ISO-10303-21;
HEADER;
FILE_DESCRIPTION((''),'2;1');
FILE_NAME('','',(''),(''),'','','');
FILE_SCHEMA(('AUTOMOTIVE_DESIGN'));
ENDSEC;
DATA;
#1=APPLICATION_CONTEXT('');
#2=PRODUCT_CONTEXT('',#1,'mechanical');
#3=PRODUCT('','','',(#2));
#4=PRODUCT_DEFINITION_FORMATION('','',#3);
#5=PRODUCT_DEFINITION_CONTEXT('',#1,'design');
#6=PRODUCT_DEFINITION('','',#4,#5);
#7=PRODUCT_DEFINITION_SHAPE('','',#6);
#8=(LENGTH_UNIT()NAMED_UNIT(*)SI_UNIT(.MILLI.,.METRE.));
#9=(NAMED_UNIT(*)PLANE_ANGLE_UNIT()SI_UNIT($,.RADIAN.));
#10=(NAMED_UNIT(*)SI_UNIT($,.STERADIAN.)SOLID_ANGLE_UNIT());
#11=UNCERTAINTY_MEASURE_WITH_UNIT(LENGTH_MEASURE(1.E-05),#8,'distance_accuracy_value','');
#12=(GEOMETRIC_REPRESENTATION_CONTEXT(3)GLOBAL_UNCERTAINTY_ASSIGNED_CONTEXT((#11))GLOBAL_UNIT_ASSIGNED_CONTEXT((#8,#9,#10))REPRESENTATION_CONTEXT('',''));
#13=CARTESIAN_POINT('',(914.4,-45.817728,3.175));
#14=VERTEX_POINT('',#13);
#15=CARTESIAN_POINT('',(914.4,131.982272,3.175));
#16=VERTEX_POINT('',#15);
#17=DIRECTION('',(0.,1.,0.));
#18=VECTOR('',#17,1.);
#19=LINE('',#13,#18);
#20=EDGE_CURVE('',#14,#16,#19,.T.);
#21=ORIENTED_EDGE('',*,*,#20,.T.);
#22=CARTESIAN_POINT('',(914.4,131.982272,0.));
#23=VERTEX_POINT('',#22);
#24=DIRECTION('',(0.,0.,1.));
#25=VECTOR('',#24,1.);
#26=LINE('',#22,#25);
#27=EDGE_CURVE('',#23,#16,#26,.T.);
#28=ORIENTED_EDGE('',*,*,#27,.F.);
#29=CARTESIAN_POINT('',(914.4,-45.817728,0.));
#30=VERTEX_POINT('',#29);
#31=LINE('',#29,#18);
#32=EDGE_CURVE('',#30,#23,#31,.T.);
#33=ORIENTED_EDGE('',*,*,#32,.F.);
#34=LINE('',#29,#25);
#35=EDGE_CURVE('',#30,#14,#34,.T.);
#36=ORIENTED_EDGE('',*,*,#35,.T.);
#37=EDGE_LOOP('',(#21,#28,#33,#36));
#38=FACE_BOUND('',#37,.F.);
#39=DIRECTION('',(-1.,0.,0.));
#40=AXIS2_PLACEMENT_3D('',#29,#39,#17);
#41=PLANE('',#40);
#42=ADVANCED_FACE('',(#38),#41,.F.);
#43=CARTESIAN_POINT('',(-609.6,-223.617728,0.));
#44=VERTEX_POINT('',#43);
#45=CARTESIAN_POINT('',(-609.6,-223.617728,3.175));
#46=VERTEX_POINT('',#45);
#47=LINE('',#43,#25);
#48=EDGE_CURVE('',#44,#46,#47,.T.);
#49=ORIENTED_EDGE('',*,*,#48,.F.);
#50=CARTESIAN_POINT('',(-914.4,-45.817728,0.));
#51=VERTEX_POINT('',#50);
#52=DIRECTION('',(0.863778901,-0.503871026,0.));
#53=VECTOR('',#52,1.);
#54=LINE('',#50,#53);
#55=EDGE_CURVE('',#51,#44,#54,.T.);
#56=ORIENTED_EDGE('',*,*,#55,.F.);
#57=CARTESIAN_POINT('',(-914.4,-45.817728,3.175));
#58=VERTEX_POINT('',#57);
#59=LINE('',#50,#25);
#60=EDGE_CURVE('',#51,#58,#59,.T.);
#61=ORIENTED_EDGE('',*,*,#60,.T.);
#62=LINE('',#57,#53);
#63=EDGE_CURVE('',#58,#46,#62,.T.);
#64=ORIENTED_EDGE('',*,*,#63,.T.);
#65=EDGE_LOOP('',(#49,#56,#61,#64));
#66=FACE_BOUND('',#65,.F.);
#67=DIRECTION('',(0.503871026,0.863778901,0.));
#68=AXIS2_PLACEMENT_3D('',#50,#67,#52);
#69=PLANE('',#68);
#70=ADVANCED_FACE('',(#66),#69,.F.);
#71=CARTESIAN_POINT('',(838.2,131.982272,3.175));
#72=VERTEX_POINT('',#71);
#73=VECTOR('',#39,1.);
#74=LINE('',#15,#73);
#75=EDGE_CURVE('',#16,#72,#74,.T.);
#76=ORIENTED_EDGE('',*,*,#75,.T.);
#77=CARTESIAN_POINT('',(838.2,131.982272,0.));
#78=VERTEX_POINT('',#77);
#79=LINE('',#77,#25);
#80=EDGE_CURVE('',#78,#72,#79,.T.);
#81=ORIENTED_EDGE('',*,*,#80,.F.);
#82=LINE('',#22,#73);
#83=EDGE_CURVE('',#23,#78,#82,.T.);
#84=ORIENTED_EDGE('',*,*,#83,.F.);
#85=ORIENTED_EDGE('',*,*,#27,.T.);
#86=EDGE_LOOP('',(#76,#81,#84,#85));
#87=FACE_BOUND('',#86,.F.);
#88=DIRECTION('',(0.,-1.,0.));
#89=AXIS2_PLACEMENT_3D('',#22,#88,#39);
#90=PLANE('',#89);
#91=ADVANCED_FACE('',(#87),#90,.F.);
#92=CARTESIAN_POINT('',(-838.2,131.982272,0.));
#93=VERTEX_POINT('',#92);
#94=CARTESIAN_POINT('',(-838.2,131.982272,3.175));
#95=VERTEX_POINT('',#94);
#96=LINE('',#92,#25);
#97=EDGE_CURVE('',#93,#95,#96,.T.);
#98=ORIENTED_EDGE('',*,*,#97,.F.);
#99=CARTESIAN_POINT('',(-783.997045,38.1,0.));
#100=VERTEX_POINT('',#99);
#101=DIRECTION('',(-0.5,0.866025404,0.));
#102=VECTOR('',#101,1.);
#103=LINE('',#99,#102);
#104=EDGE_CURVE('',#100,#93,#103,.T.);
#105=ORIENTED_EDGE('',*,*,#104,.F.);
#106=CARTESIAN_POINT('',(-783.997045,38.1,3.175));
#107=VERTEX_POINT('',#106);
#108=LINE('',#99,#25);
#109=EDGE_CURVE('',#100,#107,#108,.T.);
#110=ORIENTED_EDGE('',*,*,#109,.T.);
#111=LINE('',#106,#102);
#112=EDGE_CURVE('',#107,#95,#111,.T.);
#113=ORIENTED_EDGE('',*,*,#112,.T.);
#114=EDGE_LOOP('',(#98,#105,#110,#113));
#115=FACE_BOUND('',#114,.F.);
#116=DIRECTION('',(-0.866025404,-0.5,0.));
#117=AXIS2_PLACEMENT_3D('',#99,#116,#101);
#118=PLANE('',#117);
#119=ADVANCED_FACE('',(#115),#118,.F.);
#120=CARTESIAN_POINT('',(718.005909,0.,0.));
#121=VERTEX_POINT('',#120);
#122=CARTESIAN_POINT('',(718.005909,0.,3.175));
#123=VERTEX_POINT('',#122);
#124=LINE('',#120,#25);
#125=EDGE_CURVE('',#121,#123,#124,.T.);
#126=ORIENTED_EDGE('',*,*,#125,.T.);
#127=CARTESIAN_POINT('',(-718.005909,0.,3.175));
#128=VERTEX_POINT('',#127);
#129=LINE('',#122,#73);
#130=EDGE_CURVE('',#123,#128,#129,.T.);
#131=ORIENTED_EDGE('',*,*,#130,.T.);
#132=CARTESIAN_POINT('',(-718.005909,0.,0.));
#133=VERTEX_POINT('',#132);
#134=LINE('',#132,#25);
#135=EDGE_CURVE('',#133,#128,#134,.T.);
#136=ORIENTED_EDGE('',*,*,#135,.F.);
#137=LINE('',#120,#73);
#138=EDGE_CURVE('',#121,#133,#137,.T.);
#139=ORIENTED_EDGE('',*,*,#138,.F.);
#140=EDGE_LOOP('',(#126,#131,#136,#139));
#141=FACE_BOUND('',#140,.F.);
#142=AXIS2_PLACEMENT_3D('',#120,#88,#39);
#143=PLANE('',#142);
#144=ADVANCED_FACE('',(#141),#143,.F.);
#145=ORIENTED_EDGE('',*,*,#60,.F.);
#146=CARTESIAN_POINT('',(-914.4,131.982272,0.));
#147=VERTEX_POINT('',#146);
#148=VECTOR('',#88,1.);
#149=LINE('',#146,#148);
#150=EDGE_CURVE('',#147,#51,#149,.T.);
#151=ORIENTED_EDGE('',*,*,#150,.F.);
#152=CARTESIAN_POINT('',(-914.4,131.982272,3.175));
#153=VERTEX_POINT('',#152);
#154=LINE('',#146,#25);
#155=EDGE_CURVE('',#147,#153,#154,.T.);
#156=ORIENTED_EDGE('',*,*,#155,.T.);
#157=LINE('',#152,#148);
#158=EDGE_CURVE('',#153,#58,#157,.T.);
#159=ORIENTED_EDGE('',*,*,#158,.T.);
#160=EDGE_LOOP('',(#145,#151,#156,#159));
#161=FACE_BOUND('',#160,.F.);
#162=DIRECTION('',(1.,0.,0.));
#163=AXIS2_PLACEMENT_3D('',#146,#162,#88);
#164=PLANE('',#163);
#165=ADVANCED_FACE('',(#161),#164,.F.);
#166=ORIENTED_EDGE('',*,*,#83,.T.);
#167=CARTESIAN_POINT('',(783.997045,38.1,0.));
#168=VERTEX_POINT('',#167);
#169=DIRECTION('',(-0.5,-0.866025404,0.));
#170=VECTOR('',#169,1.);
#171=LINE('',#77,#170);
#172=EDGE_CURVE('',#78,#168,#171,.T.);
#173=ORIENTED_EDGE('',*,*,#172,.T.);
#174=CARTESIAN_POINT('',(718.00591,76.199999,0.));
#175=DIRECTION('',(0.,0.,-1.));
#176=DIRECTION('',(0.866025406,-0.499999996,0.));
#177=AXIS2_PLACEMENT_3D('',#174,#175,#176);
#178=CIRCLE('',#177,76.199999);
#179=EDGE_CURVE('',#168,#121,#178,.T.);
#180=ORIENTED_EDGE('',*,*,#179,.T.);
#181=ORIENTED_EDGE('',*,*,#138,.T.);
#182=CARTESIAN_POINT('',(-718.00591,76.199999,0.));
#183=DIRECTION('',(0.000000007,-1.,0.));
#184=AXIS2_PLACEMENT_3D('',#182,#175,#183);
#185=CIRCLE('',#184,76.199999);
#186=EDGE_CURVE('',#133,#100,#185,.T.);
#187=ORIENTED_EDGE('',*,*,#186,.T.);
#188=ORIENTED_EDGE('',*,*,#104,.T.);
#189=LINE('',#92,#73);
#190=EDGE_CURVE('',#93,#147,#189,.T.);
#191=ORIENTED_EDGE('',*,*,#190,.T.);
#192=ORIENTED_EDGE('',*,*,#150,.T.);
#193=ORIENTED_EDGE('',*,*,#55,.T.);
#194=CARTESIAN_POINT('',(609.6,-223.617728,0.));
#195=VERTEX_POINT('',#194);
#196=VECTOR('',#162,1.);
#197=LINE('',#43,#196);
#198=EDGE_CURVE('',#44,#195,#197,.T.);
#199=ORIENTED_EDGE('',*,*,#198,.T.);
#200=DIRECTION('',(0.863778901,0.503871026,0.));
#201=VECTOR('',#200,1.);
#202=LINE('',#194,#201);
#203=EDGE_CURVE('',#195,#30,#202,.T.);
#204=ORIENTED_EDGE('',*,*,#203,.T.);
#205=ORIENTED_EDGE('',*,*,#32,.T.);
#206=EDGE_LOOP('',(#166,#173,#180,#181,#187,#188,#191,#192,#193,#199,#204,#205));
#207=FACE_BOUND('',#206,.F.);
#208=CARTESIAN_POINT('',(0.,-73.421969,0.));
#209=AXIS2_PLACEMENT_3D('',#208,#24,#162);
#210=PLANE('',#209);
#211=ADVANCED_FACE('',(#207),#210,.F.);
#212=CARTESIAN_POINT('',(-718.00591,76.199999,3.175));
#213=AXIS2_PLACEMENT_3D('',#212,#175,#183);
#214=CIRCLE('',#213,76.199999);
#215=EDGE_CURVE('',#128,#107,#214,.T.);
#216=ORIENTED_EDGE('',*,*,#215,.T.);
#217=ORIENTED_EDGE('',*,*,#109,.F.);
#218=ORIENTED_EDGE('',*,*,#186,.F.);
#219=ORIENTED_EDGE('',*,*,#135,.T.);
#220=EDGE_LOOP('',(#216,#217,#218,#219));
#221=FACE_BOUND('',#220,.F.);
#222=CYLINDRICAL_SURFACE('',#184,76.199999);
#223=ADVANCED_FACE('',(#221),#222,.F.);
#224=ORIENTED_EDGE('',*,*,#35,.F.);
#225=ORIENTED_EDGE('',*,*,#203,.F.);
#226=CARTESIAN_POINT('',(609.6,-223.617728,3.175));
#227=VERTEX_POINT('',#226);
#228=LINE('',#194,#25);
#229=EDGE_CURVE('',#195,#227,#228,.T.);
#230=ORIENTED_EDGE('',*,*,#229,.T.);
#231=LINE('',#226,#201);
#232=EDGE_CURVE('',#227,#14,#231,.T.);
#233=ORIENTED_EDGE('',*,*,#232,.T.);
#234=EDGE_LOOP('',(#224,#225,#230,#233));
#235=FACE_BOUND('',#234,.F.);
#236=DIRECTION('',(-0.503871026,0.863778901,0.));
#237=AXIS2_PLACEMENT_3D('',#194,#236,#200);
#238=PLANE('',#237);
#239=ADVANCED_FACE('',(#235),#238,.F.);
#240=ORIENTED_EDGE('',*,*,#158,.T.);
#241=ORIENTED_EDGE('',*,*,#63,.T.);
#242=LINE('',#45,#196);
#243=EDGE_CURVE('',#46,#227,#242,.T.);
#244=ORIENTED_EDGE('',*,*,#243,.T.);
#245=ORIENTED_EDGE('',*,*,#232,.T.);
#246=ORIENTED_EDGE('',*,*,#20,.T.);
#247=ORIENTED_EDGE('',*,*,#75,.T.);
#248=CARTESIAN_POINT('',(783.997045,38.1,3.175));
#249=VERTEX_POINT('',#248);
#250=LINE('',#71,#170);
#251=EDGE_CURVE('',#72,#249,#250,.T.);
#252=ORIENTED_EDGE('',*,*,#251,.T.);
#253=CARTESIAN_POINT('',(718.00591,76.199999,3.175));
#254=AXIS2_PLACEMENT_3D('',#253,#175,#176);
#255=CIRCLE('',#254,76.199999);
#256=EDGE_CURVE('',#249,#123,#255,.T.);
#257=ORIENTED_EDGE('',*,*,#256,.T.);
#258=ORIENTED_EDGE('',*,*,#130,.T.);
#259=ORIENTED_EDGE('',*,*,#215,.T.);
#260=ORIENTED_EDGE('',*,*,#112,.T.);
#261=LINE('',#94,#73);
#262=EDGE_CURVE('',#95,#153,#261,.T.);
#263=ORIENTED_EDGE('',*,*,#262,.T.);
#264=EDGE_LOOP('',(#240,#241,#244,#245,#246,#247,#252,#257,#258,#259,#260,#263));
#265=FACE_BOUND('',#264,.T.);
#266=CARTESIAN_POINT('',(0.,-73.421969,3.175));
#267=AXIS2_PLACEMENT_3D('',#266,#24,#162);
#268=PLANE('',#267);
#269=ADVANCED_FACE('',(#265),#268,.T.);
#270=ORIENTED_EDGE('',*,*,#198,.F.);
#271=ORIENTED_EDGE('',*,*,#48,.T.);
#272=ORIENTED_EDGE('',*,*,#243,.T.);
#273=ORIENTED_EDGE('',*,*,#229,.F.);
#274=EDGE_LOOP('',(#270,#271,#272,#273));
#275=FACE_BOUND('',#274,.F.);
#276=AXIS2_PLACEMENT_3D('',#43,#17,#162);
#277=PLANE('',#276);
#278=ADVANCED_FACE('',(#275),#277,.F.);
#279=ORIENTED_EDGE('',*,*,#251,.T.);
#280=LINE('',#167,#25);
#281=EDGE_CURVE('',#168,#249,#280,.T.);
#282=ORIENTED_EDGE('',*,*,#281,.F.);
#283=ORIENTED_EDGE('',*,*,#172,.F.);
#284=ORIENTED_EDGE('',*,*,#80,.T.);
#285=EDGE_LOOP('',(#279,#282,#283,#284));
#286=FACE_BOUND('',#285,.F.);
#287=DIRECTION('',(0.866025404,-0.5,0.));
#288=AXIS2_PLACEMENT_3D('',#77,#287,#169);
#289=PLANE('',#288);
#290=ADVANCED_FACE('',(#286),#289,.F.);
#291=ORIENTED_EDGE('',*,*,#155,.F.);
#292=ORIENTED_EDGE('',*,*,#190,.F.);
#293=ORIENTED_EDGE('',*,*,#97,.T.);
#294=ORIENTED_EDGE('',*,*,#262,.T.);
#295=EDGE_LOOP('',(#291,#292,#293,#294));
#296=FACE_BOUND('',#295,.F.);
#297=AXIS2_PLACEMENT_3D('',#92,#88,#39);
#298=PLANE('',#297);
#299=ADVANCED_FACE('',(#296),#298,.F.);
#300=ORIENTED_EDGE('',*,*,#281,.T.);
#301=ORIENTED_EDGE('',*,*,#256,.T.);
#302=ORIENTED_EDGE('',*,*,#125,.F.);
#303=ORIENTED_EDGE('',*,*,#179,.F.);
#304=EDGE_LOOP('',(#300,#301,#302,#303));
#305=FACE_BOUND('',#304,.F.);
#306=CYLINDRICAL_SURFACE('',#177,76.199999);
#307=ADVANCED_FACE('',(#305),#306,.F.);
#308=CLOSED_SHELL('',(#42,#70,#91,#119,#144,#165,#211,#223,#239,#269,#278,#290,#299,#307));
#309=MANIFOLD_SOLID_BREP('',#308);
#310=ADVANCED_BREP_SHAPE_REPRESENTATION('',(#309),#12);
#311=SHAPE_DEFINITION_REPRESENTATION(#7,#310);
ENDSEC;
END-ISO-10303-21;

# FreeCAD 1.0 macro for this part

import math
import FreeCAD as App
import Part
import Sketcher

V = App.Vector
Q = App.Units.Quantity

doc = App.newDocument("Part")
body = doc.addObject("PartDesign::Body", "Body")

# Sketch on XY plane
sketch1 = doc.addObject("Sketcher::SketchObject", "Sketch")
body.addObject(sketch1)
sketch1.AttachmentSupport = (doc.XY_Plane, [""])
sketch1.MapMode = "FlatFace"
sketch1.addGeometry([
    Part.LineSegment(V(914.4, -45.817728, 0), V(914.4, 131.982272, 0)),  # 0
    Part.LineSegment(V(914.4, 131.982272, 0), V(838.2, 131.982272, 0)),  # 1
    Part.LineSegment(V(838.2, 131.982272, 0), V(783.997045, 38.1, 0)),  # 2
    Part.ArcOfCircle(Part.Circle(V(718.00591, 76.199999, 0), V(0, 0, 1), 76.199999), math.radians(-90), math.radians(-30)),  # 3
    Part.LineSegment(V(718.005909, 0, 0), V(-718.005909, 0, 0)),  # 4
    Part.ArcOfCircle(Part.Circle(V(-718.00591, 76.199999, 0), V(0, 0, 1), 76.199999), math.radians(-150), math.radians(-90)),  # 5
    Part.LineSegment(V(-783.997045, 38.1, 0), V(-838.2, 131.982272, 0)),  # 6
    Part.LineSegment(V(-838.2, 131.982272, 0), V(-914.4, 131.982272, 0)),  # 7
    Part.LineSegment(V(-914.4, 131.982272, 0), V(-914.4, -45.817728, 0)),  # 8
    Part.LineSegment(V(-914.4, -45.817728, 0), V(-609.6, -223.617728, 0)),  # 9
    Part.LineSegment(V(-609.6, -223.617728, 0), V(609.6, -223.617728, 0)),  # 10
    Part.LineSegment(V(609.6, -223.617728, 0), V(914.4, -45.817728, 0)),  # 11
], False)
sketch1.addConstraint([
    Sketcher.Constraint("Coincident", 0, 2, 1, 1),
    Sketcher.Constraint("Coincident", 1, 2, 2, 1),
    Sketcher.Constraint("Tangent", 2, 2, 3, 2),
    Sketcher.Constraint("Tangent", 3, 1, 4, 1),
    Sketcher.Constraint("Tangent", 4, 2, 5, 2),
    Sketcher.Constraint("Tangent", 5, 1, 6, 1),
    Sketcher.Constraint("Coincident", 6, 2, 7, 1),
    Sketcher.Constraint("Coincident", 7, 2, 8, 1),
    Sketcher.Constraint("Coincident", 8, 2, 9, 1),
    Sketcher.Constraint("Coincident", 9, 2, 10, 1),
    Sketcher.Constraint("Coincident", 10, 2, 11, 1),
    Sketcher.Constraint("Coincident", 11, 2, 0, 1),
    Sketcher.Constraint("Vertical", 0),
    Sketcher.Constraint("Horizontal", 1),
    Sketcher.Constraint("Horizontal", 4),
    Sketcher.Constraint("Horizontal", 7),
    Sketcher.Constraint("Vertical", 8),
    Sketcher.Constraint("Horizontal", 10),
    Sketcher.Constraint("Equal", 3, 5),
    Sketcher.Constraint("Symmetric", 3, 1, 4, 2, -1, 1),
    Sketcher.Constraint("Symmetric", 1, 2, 6, 2, -2),
    Sketcher.Constraint("Symmetric", 8, 2, 11, 2, -2),
    Sketcher.Constraint("Equal", 9, 11),
    Sketcher.Constraint("Radius", 3, Q("3 in")),
    Sketcher.Constraint("DistanceX", 1, 2, 1, 1, Q("3 in")),
    Sketcher.Constraint("DistanceX", 10, 1, 10, 2, Q("48 in")),
    Sketcher.Constraint("DistanceY", 0, 1, 0, 2, Q("7 in")),
    Sketcher.Constraint("DistanceX", -1, 1, 0, 2, Q("36 in")),
    Sketcher.Constraint("Angle", 2, Q("-120 deg")),
    Sketcher.Constraint("DistanceY", 9, 2, 8, 2, Q("7 in")),
    Sketcher.Constraint("DistanceX", 4, 2, 4, 1, 1436.011818),
])
pad1 = doc.addObject("PartDesign::Pad", "Pad")
body.addObject(pad1)
pad1.Profile = sketch1
pad1.Length = Q("0.125 in")

doc.recompute()
